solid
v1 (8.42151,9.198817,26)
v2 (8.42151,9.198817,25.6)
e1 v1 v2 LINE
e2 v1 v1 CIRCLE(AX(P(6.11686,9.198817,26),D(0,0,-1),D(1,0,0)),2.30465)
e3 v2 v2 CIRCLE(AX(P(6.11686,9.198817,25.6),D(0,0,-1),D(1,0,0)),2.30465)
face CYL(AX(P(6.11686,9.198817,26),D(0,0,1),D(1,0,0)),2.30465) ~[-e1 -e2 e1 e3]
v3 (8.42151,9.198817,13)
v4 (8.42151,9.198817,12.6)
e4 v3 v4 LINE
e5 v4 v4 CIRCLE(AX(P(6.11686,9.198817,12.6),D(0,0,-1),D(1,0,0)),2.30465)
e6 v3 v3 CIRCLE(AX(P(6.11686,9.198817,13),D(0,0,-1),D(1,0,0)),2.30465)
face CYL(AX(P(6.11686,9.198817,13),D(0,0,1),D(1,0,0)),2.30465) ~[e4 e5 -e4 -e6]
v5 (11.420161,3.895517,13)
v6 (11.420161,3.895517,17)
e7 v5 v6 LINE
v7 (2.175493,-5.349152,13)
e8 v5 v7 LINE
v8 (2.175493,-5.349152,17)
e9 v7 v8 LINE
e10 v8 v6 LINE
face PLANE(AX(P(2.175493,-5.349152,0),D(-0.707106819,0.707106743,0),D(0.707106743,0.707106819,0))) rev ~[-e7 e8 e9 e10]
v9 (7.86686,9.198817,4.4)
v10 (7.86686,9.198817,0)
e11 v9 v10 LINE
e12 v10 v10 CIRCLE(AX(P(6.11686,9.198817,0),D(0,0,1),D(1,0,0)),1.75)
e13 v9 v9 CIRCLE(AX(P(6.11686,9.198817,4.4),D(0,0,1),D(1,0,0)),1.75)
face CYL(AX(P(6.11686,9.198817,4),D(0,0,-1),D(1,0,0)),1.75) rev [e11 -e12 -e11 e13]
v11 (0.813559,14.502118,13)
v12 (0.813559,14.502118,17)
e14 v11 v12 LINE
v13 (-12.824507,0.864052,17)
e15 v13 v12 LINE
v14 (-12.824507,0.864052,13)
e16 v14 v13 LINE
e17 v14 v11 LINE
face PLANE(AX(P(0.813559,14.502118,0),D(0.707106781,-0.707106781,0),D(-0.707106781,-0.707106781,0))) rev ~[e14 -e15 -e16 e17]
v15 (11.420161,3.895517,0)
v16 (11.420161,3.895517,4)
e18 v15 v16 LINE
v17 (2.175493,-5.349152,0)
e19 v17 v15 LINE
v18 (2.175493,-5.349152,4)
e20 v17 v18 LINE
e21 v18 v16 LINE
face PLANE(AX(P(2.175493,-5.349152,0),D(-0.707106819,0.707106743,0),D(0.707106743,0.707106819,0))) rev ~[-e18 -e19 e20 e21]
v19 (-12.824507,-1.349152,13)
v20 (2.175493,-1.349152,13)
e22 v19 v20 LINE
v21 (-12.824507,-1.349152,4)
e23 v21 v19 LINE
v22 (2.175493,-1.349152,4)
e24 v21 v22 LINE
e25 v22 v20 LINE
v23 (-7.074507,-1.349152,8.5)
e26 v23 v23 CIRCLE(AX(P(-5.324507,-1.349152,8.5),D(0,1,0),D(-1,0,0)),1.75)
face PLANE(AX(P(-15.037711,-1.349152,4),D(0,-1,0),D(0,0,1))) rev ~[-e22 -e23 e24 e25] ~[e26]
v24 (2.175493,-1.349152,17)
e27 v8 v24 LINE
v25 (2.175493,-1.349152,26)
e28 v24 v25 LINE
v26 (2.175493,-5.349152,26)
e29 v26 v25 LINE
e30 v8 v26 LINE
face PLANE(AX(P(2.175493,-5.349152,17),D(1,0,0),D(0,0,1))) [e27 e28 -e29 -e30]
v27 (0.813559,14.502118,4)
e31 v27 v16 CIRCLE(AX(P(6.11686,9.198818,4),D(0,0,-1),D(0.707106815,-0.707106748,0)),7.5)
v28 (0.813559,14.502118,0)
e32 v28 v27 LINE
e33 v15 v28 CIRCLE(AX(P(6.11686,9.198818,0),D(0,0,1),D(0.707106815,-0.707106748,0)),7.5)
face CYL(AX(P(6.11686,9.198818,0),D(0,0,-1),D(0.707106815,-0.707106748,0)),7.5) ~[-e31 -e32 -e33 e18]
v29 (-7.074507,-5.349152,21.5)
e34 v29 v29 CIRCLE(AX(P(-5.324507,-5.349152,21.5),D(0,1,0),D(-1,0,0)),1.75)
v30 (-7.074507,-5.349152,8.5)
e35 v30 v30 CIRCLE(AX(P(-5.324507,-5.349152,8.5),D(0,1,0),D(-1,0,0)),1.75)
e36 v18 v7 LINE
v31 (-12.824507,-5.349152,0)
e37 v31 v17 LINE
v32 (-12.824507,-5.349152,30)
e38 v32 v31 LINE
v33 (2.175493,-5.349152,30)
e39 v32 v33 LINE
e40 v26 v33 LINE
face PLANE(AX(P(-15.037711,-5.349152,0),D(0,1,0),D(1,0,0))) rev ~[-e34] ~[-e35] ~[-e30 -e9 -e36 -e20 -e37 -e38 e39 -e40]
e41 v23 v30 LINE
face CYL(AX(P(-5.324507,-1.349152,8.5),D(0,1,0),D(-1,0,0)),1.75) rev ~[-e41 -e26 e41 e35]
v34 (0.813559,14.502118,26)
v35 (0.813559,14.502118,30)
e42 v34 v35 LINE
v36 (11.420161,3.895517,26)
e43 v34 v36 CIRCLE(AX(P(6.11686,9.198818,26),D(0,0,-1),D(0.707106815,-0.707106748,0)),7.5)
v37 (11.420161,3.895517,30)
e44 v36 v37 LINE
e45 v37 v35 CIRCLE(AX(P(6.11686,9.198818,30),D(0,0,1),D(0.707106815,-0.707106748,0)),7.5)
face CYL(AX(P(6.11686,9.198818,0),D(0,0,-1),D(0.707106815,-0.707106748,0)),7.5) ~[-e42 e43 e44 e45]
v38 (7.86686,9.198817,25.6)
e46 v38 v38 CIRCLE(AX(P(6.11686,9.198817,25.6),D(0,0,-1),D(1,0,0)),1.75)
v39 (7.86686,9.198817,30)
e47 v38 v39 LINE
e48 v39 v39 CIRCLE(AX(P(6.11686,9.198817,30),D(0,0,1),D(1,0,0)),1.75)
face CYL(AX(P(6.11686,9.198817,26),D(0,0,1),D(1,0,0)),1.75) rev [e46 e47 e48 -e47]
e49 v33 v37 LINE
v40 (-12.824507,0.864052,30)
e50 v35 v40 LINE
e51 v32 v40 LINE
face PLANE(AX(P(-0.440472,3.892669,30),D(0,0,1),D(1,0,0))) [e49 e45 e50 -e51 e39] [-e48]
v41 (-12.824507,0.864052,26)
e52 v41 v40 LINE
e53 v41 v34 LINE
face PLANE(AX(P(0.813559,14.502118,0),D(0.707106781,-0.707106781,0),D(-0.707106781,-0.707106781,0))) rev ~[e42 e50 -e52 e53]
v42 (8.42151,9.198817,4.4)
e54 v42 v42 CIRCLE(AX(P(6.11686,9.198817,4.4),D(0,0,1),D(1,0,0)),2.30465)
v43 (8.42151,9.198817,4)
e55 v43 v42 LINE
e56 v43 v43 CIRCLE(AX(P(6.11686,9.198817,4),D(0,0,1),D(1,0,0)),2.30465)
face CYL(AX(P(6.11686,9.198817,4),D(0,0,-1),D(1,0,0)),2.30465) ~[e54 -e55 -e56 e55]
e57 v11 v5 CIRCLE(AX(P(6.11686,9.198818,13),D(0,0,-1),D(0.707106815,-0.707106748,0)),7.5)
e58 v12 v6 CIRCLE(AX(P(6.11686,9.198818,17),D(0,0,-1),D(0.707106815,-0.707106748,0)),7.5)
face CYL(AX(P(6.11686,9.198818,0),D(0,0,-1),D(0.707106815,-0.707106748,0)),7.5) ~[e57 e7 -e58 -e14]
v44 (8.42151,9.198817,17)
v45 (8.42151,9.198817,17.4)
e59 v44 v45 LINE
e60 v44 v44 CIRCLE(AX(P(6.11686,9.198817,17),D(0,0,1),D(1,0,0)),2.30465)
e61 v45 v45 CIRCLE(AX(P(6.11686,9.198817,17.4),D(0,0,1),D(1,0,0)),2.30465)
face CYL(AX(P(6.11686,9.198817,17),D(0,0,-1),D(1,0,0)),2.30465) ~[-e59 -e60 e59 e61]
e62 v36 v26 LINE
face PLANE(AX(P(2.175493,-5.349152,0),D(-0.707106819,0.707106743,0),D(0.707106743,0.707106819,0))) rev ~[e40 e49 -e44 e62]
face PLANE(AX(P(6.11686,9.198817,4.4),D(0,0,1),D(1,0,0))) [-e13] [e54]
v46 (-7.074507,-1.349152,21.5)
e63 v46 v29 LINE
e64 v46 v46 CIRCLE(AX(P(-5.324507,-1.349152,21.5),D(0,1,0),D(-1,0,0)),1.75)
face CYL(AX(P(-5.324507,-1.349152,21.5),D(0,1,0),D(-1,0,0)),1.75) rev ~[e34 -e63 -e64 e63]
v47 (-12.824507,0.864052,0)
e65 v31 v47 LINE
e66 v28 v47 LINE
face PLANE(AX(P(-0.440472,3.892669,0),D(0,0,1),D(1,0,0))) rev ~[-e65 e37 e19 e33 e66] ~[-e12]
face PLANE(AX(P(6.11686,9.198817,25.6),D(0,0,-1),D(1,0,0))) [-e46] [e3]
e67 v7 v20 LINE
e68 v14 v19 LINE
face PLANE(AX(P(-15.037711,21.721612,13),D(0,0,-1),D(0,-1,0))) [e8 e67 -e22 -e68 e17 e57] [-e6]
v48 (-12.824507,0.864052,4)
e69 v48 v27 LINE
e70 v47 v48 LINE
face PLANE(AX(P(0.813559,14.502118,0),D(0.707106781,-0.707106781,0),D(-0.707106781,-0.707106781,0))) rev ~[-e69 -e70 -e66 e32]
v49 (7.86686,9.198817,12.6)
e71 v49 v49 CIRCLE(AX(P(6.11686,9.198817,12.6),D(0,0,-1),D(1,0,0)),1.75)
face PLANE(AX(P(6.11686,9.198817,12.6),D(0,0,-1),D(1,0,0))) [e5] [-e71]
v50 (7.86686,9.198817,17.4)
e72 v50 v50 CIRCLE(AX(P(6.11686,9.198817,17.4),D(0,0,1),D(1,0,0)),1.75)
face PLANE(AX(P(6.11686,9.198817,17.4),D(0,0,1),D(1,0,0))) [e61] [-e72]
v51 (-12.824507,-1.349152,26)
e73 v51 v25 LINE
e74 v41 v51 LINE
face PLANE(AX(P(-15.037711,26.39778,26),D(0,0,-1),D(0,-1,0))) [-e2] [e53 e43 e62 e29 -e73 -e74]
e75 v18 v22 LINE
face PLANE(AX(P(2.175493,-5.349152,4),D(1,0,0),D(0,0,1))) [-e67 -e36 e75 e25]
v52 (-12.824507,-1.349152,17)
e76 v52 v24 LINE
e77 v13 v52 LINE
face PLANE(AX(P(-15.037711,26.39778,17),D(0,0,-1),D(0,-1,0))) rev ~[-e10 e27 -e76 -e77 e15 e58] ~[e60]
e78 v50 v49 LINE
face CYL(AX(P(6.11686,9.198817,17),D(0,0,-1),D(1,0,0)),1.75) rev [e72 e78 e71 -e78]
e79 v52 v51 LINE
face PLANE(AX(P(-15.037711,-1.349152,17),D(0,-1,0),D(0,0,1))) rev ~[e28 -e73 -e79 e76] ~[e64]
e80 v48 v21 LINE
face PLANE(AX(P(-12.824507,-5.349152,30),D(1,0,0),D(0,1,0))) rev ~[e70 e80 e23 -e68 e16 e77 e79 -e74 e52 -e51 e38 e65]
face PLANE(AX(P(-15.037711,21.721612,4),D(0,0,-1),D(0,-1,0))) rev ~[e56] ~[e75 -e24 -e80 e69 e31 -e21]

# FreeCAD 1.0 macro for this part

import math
import FreeCAD as App
import Part
import Sketcher

V = App.Vector
Q = App.Units.Quantity

doc = App.newDocument("Part")
params = doc.addObject("Spreadsheet::Sheet", "Params")
for row, (alias, value) in enumerate([
    ("sketch1_diameter", "3.5 mm"),
    ("sketch1_radius", "7.5 mm"),
    ("sketch1_height", "4 mm"),
    ("pad1_length", "30 mm"),
    ("sketch2_height", "9 mm"),
    ("pocket1_length", "39.1 mm"),
    ("pocket2_length", "500 mm"),
    ("sketch4_diameter", "3.5 mm"),
    ("pad2_length", "0.4 mm"),
    ("sketch5_diameter", "3.5 mm"),
    ("pad3_length", "0.4 mm"),
    ("sketch6_diameter", "3.5 mm"),
    ("pad4_length", "0.4 mm"),
    ("sketch7_diameter", "3.5 mm"),
    ("pad5_length", "0.4 mm"),
    ("sketch8_width", "4 mm"),
    ("sketch8_height", "9 mm"),
    ("pocket3_length", "6 mm"),
    ("sketch9_diameter", "3.5 mm"),
    ("pocket4_length", "25 mm"),
], start=1):
    params.set(f"A{row}", alias)
    params.set(f"B{row}", "=" + value)
    params.setAlias(f"B{row}", alias)

body = doc.addObject("PartDesign::Body", "Body")

sketch1 = doc.addObject("Sketcher::SketchObject", "Sketch")
body.addObject(sketch1)
sketch1.AttachmentSupport = (doc.XY_Plane, [""])
sketch1.MapMode = "FlatFace"
sketch1.addGeometry([
    Part.LineSegment(V(-15.037711, -5.349152, 0), V(2.175493, -5.349152, 0)),
    Part.LineSegment(V(2.175493, -5.349152, 0), V(11.420161, 3.895517, 0)),
    Part.ArcOfCircle(Part.Circle(V(6.11686, 9.198818, 0), V(0, 0, 1), 7.5), math.radians(-44.999997), math.radians(135.000003)),
    Part.LineSegment(V(0.813559, 14.502118, 0), V(-15.037711, -1.349152, 0)),
    Part.LineSegment(V(-15.037711, -1.349152, 0), V(-15.037711, -5.349152, 0)),
    Part.Circle(V(6.11686, 9.198817, 0), V(0, 0, 1), 1.75),
], False)
sketch1.addConstraint([
    Sketcher.Constraint("Coincident", 0, 2, 1, 1),
    Sketcher.Constraint("Tangent", 1, 2, 2, 1),
    Sketcher.Constraint("Tangent", 2, 2, 3, 1),
    Sketcher.Constraint("Coincident", 3, 2, 4, 1),
    Sketcher.Constraint("Coincident", 4, 2, 0, 1),
    Sketcher.Constraint("Horizontal", 0),
    Sketcher.Constraint("Vertical", 4),
    Sketcher.Constraint("Coincident", 5, 3, 2, 3),
    Sketcher.Constraint("Parallel", 1, 3),
    Sketcher.Constraint("Diameter", 5, Q("3.5 mm")),
    Sketcher.Constraint("Radius", 2, Q("7.5 mm")),
    Sketcher.Constraint("DistanceY", 4, 2, 4, 1, Q("4 mm")),
    Sketcher.Constraint("Angle", 1, Q("45.000003 deg")),
    Sketcher.Constraint("Distance", 3, Q("22.417081 mm")),
    Sketcher.Constraint("DistanceX", -1, 1, 2, 3, Q("6.11686 mm")),
    Sketcher.Constraint("DistanceY", -1, 1, 2, 2, Q("14.502118 mm")),
])
sketch1.setExpression("Constraints[9]", "Params.sketch1_diameter")
sketch1.setExpression("Constraints[10]", "Params.sketch1_radius")
sketch1.setExpression("Constraints[11]", "Params.sketch1_height")
pad1 = doc.addObject("PartDesign::Pad", "Pad")
body.addObject(pad1)
pad1.Profile = sketch1
pad1.setExpression("Length", "Params.pad1_length")

sketch2 = doc.addObject("Sketcher::SketchObject", "Sketch001")
body.addObject(sketch2)
sketch2.AttachmentSupport = (doc.YZ_Plane, [""])
sketch2.MapMode = "FlatFace"
sketch2.AttachmentOffset = App.Placement(V(0, 0, -15.037711), App.Rotation())
sketch2.addGeometry([
    Part.LineSegment(V(21.721612, 13, 0), V(21.721612, 4, 0)),
    Part.LineSegment(V(21.721612, 4, 0), V(-1.349152, 4, 0)),
    Part.LineSegment(V(-1.349152, 4, 0), V(-1.349152, 13, 0)),
    Part.LineSegment(V(-1.349152, 13, 0), V(21.721612, 13, 0)),
    Part.LineSegment(V(26.39778, 26, 0), V(26.39778, 17, 0)),
    Part.LineSegment(V(26.39778, 17, 0), V(-1.349152, 17, 0)),
    Part.LineSegment(V(-1.349152, 17, 0), V(-1.349152, 26, 0)),
    Part.LineSegment(V(-1.349152, 26, 0), V(26.39778, 26, 0)),
], False)
sketch2.addConstraint([
    Sketcher.Constraint("Coincident", 0, 2, 1, 1),
    Sketcher.Constraint("Coincident", 1, 2, 2, 1),
    Sketcher.Constraint("Coincident", 2, 2, 3, 1),
    Sketcher.Constraint("Coincident", 3, 2, 0, 1),
    Sketcher.Constraint("Coincident", 4, 2, 5, 1),
    Sketcher.Constraint("Coincident", 5, 2, 6, 1),
    Sketcher.Constraint("Coincident", 6, 2, 7, 1),
    Sketcher.Constraint("Coincident", 7, 2, 4, 1),
    Sketcher.Constraint("Vertical", 0),
    Sketcher.Constraint("Horizontal", 1),
    Sketcher.Constraint("Vertical", 2),
    Sketcher.Constraint("Horizontal", 3),
    Sketcher.Constraint("Vertical", 4),
    Sketcher.Constraint("Horizontal", 5),
    Sketcher.Constraint("Vertical", 6),
    Sketcher.Constraint("Horizontal", 7),
    Sketcher.Constraint("Vertical", 2, 2, 5, 2),
    Sketcher.Constraint("Equal", 2, 4),
    Sketcher.Constraint("DistanceY", 0, 2, 0, 1, Q("9 mm")),
    Sketcher.Constraint("DistanceY", -1, 1, 0, 2, Q("4 mm")),
    Sketcher.Constraint("DistanceY", -1, 1, 4, 2, Q("17 mm")),
    Sketcher.Constraint("DistanceX", 1, 2, 1, 1, Q("23.070765 mm")),
    Sketcher.Constraint("DistanceX", 5, 2, 5, 1, Q("27.746933 mm")),
    Sketcher.Constraint("DistanceX", -1, 1, 4, 2, Q("26.39778 mm")),
])
sketch2.setExpression("Constraints[18]", "Params.sketch2_height")
pocket1 = doc.addObject("PartDesign::Pocket", "Pocket")
body.addObject(pocket1)
pocket1.Profile = sketch2
pocket1.setExpression("Length", "Params.pocket1_length")
pocket1.Reversed = True

sketch3 = doc.addObject("Sketcher::SketchObject", "Sketch002")
body.addObject(sketch3)
sketch3.AttachmentSupport = (doc.XY_Plane, [""])
sketch3.MapMode = "FlatFace"
sketch3.AttachmentOffset = App.Placement(V(0, 0, 30), App.Rotation())
sketch3.addGeometry([
    Part.LineSegment(V(-15.037711, 10.987816, 0), V(-15.037711, -5.349152, 0)),
    Part.LineSegment(V(-15.037711, -5.349152, 0), V(-12.824507, -5.349152, 0)),
    Part.LineSegment(V(-12.824507, -5.349152, 0), V(-12.824507, 10.987816, 0)),
    Part.LineSegment(V(-12.824507, 10.987816, 0), V(-15.037711, 10.987816, 0)),
], False)
sketch3.addConstraint([
    Sketcher.Constraint("Coincident", 0, 2, 1, 1),
    Sketcher.Constraint("Coincident", 1, 2, 2, 1),
    Sketcher.Constraint("Coincident", 2, 2, 3, 1),
    Sketcher.Constraint("Coincident", 3, 2, 0, 1),
    Sketcher.Constraint("Vertical", 0),
    Sketcher.Constraint("Horizontal", 1),
    Sketcher.Constraint("Vertical", 2),
    Sketcher.Constraint("Horizontal", 3),
    Sketcher.Constraint("DistanceX", 1, 1, 1, 2, Q("2.213204 mm")),
    Sketcher.Constraint("DistanceY", 0, 2, 0, 1, Q("16.336968 mm")),
    Sketcher.Constraint("DistanceX", 0, 2, -1, 1, Q("15.037711 mm")),
    Sketcher.Constraint("DistanceY", 0, 2, -1, 1, Q("5.349152 mm")),
])
pocket2 = doc.addObject("PartDesign::Pocket", "Pocket001")
body.addObject(pocket2)
pocket2.Profile = sketch3
pocket2.setExpression("Length", "Params.pocket2_length")

sketch4 = doc.addObject("Sketcher::SketchObject", "Sketch003")
body.addObject(sketch4)
sketch4.AttachmentSupport = (doc.XY_Plane, [""])
sketch4.MapMode = "FlatFace"
sketch4.AttachmentOffset = App.Placement(V(0, 0, 13), App.Rotation())
sketch4.addGeometry([
    Part.Circle(V(6.11686, 9.198817, 0), V(0, 0, 1), 2.30465),
    Part.Circle(V(6.11686, 9.198817, 0), V(0, 0, 1), 1.75),
], False)
sketch4.addConstraint([
    Sketcher.Constraint("Coincident", 1, 3, 0, 3),
    Sketcher.Constraint("Diameter", 1, Q("3.5 mm")),
    Sketcher.Constraint("Diameter", 0, Q("4.6093 mm")),
    Sketcher.Constraint("DistanceX", -1, 1, 0, 3, Q("6.11686 mm")),
    Sketcher.Constraint("DistanceY", -1, 1, 0, 3, Q("9.198817 mm")),
])
sketch4.setExpression("Constraints[1]", "Params.sketch4_diameter")
pad2 = doc.addObject("PartDesign::Pad", "Pad001")
body.addObject(pad2)
pad2.Profile = sketch4
pad2.setExpression("Length", "Params.pad2_length")
pad2.Reversed = True

sketch5 = doc.addObject("Sketcher::SketchObject", "Sketch004")
body.addObject(sketch5)
sketch5.AttachmentSupport = (doc.XY_Plane, [""])
sketch5.MapMode = "FlatFace"
sketch5.AttachmentOffset = App.Placement(V(0, 0, 26), App.Rotation())
sketch5.addGeometry([
    Part.Circle(V(6.11686, 9.198817, 0), V(0, 0, 1), 2.30465),
    Part.Circle(V(6.11686, 9.198817, 0), V(0, 0, 1), 1.75),
], False)
sketch5.addConstraint([
    Sketcher.Constraint("Coincident", 1, 3, 0, 3),
    Sketcher.Constraint("Diameter", 1, Q("3.5 mm")),
    Sketcher.Constraint("Diameter", 0, Q("4.6093 mm")),
    Sketcher.Constraint("DistanceX", -1, 1, 0, 3, Q("6.11686 mm")),
    Sketcher.Constraint("DistanceY", -1, 1, 0, 3, Q("9.198817 mm")),
])
sketch5.setExpression("Constraints[1]", "Params.sketch5_diameter")
pad3 = doc.addObject("PartDesign::Pad", "Pad002")
body.addObject(pad3)
pad3.Profile = sketch5
pad3.setExpression("Length", "Params.pad3_length")
pad3.Reversed = True

sketch6 = doc.addObject("Sketcher::SketchObject", "Sketch005")
body.addObject(sketch6)
sketch6.AttachmentSupport = (doc.XY_Plane, [""])
sketch6.MapMode = "FlatFace"
sketch6.AttachmentOffset = App.Placement(V(0, 0, 17), App.Rotation())
sketch6.addGeometry([
    Part.Circle(V(6.11686, 9.198817, 0), V(0, 0, 1), 2.30465),
    Part.Circle(V(6.11686, 9.198817, 0), V(0, 0, 1), 1.75),
], False)
sketch6.addConstraint([
    Sketcher.Constraint("Coincident", 1, 3, 0, 3),
    Sketcher.Constraint("Diameter", 1, Q("3.5 mm")),
    Sketcher.Constraint("Diameter", 0, Q("4.6093 mm")),
    Sketcher.Constraint("DistanceX", -1, 1, 0, 3, Q("6.11686 mm")),
    Sketcher.Constraint("DistanceY", -1, 1, 0, 3, Q("9.198817 mm")),
])
sketch6.setExpression("Constraints[1]", "Params.sketch6_diameter")
pad4 = doc.addObject("PartDesign::Pad", "Pad003")
body.addObject(pad4)
pad4.Profile = sketch6
pad4.setExpression("Length", "Params.pad4_length")

sketch7 = doc.addObject("Sketcher::SketchObject", "Sketch006")
body.addObject(sketch7)
sketch7.AttachmentSupport = (doc.XY_Plane, [""])
sketch7.MapMode = "FlatFace"
sketch7.AttachmentOffset = App.Placement(V(0, 0, 4), App.Rotation())
sketch7.addGeometry([
    Part.Circle(V(6.11686, 9.198817, 0), V(0, 0, 1), 2.30465),
    Part.Circle(V(6.11686, 9.198817, 0), V(0, 0, 1), 1.75),
], False)
sketch7.addConstraint([
    Sketcher.Constraint("Coincident", 1, 3, 0, 3),
    Sketcher.Constraint("Diameter", 1, Q("3.5 mm")),
    Sketcher.Constraint("Diameter", 0, Q("4.6093 mm")),
    Sketcher.Constraint("DistanceX", -1, 1, 0, 3, Q("6.11686 mm")),
    Sketcher.Constraint("DistanceY", -1, 1, 0, 3, Q("9.198817 mm")),
])
sketch7.setExpression("Constraints[1]", "Params.sketch7_diameter")
pad5 = doc.addObject("PartDesign::Pad", "Pad004")
body.addObject(pad5)
pad5.Profile = sketch7
pad5.setExpression("Length", "Params.pad5_length")

sketch8 = doc.addObject("Sketcher::SketchObject", "Sketch007")
body.addObject(sketch8)
sketch8.AttachmentSupport = (doc.XZ_Plane, [""])
sketch8.MapMode = "FlatFace"
sketch8.AttachmentOffset = App.Placement(V(0, 0, 5.349152), App.Rotation())
sketch8.addGeometry([
    Part.LineSegment(V(2.175493, 13, 0), V(2.175493, 4, 0)),
    Part.LineSegment(V(2.175493, 4, 0), V(6.175493, 4, 0)),
    Part.LineSegment(V(6.175493, 4, 0), V(6.175493, 13, 0)),
    Part.LineSegment(V(6.175493, 13, 0), V(2.175493, 13, 0)),
    Part.LineSegment(V(2.175493, 26, 0), V(2.175493, 17, 0)),
    Part.LineSegment(V(2.175493, 17, 0), V(6.175493, 17, 0)),
    Part.LineSegment(V(6.175493, 17, 0), V(6.175493, 26, 0)),
    Part.LineSegment(V(6.175493, 26, 0), V(2.175493, 26, 0)),
], False)
sketch8.addConstraint([
    Sketcher.Constraint("Coincident", 0, 2, 1, 1),
    Sketcher.Constraint("Coincident", 1, 2, 2, 1),
    Sketcher.Constraint("Coincident", 2, 2, 3, 1),
    Sketcher.Constraint("Coincident", 3, 2, 0, 1),
    Sketcher.Constraint("Coincident", 4, 2, 5, 1),
    Sketcher.Constraint("Coincident", 5, 2, 6, 1),
    Sketcher.Constraint("Coincident", 6, 2, 7, 1),
    Sketcher.Constraint("Coincident", 7, 2, 4, 1),
    Sketcher.Constraint("Vertical", 0),
    Sketcher.Constraint("Horizontal", 1),
    Sketcher.Constraint("Vertical", 2),
    Sketcher.Constraint("Horizontal", 3),
    Sketcher.Constraint("Vertical", 4),
    Sketcher.Constraint("Horizontal", 5),
    Sketcher.Constraint("Vertical", 6),
    Sketcher.Constraint("Horizontal", 7),
    Sketcher.Constraint("Vertical", 3, 2, 4, 2),
    Sketcher.Constraint("Vertical", 2, 2, 5, 2),
    Sketcher.Constraint("Equal", 2, 4),
    Sketcher.Constraint("DistanceX", 1, 1, 1, 2, Q("4 mm")),
    Sketcher.Constraint("DistanceY", 0, 2, 0, 1, Q("9 mm")),
    Sketcher.Constraint("DistanceY", -1, 1, 0, 2, Q("4 mm")),
    Sketcher.Constraint("DistanceY", -1, 1, 4, 2, Q("17 mm")),
    Sketcher.Constraint("DistanceX", -1, 1, 0, 2, Q("2.175493 mm")),
])
sketch8.setExpression("Constraints[19]", "Params.sketch8_width")
sketch8.setExpression("Constraints[20]", "Params.sketch8_height")
pocket3 = doc.addObject("PartDesign::Pocket", "Pocket002")
body.addObject(pocket3)
pocket3.Profile = sketch8
pocket3.setExpression("Length", "Params.pocket3_length")

sketch9 = doc.addObject("Sketcher::SketchObject", "Sketch008")
body.addObject(sketch9)
sketch9.AttachmentSupport = (doc.XZ_Plane, [""])
sketch9.MapMode = "FlatFace"
sketch9.AttachmentOffset = App.Placement(V(0, 0, 1.349152), App.Rotation())
sketch9.addGeometry([
    Part.Circle(V(-5.324507, 21.5, 0), V(0, 0, 1), 1.75),
    Part.Circle(V(-5.324507, 8.5, 0), V(0, 0, 1), 1.75),
], False)
sketch9.addConstraint([
    Sketcher.Constraint("Equal", 0, 1),
    Sketcher.Constraint("Vertical", 0, 3, 1, 3),
    Sketcher.Constraint("Diameter", 0, Q("3.5 mm")),
    Sketcher.Constraint("DistanceY", 1, 3, 0, 3, Q("13 mm")),
    Sketcher.Constraint("DistanceY", -1, 1, 0, 3, Q("21.5 mm")),
    Sketcher.Constraint("DistanceX", 0, 3, -1, 1, Q("5.324507 mm")),
])
sketch9.setExpression("Constraints[2]", "Params.sketch9_diameter")
pocket4 = doc.addObject("PartDesign::Pocket", "Pocket003")
body.addObject(pocket4)
pocket4.Profile = sketch9
pocket4.setExpression("Length", "Params.pocket4_length")
pocket4.Reversed = True

doc.recompute()
